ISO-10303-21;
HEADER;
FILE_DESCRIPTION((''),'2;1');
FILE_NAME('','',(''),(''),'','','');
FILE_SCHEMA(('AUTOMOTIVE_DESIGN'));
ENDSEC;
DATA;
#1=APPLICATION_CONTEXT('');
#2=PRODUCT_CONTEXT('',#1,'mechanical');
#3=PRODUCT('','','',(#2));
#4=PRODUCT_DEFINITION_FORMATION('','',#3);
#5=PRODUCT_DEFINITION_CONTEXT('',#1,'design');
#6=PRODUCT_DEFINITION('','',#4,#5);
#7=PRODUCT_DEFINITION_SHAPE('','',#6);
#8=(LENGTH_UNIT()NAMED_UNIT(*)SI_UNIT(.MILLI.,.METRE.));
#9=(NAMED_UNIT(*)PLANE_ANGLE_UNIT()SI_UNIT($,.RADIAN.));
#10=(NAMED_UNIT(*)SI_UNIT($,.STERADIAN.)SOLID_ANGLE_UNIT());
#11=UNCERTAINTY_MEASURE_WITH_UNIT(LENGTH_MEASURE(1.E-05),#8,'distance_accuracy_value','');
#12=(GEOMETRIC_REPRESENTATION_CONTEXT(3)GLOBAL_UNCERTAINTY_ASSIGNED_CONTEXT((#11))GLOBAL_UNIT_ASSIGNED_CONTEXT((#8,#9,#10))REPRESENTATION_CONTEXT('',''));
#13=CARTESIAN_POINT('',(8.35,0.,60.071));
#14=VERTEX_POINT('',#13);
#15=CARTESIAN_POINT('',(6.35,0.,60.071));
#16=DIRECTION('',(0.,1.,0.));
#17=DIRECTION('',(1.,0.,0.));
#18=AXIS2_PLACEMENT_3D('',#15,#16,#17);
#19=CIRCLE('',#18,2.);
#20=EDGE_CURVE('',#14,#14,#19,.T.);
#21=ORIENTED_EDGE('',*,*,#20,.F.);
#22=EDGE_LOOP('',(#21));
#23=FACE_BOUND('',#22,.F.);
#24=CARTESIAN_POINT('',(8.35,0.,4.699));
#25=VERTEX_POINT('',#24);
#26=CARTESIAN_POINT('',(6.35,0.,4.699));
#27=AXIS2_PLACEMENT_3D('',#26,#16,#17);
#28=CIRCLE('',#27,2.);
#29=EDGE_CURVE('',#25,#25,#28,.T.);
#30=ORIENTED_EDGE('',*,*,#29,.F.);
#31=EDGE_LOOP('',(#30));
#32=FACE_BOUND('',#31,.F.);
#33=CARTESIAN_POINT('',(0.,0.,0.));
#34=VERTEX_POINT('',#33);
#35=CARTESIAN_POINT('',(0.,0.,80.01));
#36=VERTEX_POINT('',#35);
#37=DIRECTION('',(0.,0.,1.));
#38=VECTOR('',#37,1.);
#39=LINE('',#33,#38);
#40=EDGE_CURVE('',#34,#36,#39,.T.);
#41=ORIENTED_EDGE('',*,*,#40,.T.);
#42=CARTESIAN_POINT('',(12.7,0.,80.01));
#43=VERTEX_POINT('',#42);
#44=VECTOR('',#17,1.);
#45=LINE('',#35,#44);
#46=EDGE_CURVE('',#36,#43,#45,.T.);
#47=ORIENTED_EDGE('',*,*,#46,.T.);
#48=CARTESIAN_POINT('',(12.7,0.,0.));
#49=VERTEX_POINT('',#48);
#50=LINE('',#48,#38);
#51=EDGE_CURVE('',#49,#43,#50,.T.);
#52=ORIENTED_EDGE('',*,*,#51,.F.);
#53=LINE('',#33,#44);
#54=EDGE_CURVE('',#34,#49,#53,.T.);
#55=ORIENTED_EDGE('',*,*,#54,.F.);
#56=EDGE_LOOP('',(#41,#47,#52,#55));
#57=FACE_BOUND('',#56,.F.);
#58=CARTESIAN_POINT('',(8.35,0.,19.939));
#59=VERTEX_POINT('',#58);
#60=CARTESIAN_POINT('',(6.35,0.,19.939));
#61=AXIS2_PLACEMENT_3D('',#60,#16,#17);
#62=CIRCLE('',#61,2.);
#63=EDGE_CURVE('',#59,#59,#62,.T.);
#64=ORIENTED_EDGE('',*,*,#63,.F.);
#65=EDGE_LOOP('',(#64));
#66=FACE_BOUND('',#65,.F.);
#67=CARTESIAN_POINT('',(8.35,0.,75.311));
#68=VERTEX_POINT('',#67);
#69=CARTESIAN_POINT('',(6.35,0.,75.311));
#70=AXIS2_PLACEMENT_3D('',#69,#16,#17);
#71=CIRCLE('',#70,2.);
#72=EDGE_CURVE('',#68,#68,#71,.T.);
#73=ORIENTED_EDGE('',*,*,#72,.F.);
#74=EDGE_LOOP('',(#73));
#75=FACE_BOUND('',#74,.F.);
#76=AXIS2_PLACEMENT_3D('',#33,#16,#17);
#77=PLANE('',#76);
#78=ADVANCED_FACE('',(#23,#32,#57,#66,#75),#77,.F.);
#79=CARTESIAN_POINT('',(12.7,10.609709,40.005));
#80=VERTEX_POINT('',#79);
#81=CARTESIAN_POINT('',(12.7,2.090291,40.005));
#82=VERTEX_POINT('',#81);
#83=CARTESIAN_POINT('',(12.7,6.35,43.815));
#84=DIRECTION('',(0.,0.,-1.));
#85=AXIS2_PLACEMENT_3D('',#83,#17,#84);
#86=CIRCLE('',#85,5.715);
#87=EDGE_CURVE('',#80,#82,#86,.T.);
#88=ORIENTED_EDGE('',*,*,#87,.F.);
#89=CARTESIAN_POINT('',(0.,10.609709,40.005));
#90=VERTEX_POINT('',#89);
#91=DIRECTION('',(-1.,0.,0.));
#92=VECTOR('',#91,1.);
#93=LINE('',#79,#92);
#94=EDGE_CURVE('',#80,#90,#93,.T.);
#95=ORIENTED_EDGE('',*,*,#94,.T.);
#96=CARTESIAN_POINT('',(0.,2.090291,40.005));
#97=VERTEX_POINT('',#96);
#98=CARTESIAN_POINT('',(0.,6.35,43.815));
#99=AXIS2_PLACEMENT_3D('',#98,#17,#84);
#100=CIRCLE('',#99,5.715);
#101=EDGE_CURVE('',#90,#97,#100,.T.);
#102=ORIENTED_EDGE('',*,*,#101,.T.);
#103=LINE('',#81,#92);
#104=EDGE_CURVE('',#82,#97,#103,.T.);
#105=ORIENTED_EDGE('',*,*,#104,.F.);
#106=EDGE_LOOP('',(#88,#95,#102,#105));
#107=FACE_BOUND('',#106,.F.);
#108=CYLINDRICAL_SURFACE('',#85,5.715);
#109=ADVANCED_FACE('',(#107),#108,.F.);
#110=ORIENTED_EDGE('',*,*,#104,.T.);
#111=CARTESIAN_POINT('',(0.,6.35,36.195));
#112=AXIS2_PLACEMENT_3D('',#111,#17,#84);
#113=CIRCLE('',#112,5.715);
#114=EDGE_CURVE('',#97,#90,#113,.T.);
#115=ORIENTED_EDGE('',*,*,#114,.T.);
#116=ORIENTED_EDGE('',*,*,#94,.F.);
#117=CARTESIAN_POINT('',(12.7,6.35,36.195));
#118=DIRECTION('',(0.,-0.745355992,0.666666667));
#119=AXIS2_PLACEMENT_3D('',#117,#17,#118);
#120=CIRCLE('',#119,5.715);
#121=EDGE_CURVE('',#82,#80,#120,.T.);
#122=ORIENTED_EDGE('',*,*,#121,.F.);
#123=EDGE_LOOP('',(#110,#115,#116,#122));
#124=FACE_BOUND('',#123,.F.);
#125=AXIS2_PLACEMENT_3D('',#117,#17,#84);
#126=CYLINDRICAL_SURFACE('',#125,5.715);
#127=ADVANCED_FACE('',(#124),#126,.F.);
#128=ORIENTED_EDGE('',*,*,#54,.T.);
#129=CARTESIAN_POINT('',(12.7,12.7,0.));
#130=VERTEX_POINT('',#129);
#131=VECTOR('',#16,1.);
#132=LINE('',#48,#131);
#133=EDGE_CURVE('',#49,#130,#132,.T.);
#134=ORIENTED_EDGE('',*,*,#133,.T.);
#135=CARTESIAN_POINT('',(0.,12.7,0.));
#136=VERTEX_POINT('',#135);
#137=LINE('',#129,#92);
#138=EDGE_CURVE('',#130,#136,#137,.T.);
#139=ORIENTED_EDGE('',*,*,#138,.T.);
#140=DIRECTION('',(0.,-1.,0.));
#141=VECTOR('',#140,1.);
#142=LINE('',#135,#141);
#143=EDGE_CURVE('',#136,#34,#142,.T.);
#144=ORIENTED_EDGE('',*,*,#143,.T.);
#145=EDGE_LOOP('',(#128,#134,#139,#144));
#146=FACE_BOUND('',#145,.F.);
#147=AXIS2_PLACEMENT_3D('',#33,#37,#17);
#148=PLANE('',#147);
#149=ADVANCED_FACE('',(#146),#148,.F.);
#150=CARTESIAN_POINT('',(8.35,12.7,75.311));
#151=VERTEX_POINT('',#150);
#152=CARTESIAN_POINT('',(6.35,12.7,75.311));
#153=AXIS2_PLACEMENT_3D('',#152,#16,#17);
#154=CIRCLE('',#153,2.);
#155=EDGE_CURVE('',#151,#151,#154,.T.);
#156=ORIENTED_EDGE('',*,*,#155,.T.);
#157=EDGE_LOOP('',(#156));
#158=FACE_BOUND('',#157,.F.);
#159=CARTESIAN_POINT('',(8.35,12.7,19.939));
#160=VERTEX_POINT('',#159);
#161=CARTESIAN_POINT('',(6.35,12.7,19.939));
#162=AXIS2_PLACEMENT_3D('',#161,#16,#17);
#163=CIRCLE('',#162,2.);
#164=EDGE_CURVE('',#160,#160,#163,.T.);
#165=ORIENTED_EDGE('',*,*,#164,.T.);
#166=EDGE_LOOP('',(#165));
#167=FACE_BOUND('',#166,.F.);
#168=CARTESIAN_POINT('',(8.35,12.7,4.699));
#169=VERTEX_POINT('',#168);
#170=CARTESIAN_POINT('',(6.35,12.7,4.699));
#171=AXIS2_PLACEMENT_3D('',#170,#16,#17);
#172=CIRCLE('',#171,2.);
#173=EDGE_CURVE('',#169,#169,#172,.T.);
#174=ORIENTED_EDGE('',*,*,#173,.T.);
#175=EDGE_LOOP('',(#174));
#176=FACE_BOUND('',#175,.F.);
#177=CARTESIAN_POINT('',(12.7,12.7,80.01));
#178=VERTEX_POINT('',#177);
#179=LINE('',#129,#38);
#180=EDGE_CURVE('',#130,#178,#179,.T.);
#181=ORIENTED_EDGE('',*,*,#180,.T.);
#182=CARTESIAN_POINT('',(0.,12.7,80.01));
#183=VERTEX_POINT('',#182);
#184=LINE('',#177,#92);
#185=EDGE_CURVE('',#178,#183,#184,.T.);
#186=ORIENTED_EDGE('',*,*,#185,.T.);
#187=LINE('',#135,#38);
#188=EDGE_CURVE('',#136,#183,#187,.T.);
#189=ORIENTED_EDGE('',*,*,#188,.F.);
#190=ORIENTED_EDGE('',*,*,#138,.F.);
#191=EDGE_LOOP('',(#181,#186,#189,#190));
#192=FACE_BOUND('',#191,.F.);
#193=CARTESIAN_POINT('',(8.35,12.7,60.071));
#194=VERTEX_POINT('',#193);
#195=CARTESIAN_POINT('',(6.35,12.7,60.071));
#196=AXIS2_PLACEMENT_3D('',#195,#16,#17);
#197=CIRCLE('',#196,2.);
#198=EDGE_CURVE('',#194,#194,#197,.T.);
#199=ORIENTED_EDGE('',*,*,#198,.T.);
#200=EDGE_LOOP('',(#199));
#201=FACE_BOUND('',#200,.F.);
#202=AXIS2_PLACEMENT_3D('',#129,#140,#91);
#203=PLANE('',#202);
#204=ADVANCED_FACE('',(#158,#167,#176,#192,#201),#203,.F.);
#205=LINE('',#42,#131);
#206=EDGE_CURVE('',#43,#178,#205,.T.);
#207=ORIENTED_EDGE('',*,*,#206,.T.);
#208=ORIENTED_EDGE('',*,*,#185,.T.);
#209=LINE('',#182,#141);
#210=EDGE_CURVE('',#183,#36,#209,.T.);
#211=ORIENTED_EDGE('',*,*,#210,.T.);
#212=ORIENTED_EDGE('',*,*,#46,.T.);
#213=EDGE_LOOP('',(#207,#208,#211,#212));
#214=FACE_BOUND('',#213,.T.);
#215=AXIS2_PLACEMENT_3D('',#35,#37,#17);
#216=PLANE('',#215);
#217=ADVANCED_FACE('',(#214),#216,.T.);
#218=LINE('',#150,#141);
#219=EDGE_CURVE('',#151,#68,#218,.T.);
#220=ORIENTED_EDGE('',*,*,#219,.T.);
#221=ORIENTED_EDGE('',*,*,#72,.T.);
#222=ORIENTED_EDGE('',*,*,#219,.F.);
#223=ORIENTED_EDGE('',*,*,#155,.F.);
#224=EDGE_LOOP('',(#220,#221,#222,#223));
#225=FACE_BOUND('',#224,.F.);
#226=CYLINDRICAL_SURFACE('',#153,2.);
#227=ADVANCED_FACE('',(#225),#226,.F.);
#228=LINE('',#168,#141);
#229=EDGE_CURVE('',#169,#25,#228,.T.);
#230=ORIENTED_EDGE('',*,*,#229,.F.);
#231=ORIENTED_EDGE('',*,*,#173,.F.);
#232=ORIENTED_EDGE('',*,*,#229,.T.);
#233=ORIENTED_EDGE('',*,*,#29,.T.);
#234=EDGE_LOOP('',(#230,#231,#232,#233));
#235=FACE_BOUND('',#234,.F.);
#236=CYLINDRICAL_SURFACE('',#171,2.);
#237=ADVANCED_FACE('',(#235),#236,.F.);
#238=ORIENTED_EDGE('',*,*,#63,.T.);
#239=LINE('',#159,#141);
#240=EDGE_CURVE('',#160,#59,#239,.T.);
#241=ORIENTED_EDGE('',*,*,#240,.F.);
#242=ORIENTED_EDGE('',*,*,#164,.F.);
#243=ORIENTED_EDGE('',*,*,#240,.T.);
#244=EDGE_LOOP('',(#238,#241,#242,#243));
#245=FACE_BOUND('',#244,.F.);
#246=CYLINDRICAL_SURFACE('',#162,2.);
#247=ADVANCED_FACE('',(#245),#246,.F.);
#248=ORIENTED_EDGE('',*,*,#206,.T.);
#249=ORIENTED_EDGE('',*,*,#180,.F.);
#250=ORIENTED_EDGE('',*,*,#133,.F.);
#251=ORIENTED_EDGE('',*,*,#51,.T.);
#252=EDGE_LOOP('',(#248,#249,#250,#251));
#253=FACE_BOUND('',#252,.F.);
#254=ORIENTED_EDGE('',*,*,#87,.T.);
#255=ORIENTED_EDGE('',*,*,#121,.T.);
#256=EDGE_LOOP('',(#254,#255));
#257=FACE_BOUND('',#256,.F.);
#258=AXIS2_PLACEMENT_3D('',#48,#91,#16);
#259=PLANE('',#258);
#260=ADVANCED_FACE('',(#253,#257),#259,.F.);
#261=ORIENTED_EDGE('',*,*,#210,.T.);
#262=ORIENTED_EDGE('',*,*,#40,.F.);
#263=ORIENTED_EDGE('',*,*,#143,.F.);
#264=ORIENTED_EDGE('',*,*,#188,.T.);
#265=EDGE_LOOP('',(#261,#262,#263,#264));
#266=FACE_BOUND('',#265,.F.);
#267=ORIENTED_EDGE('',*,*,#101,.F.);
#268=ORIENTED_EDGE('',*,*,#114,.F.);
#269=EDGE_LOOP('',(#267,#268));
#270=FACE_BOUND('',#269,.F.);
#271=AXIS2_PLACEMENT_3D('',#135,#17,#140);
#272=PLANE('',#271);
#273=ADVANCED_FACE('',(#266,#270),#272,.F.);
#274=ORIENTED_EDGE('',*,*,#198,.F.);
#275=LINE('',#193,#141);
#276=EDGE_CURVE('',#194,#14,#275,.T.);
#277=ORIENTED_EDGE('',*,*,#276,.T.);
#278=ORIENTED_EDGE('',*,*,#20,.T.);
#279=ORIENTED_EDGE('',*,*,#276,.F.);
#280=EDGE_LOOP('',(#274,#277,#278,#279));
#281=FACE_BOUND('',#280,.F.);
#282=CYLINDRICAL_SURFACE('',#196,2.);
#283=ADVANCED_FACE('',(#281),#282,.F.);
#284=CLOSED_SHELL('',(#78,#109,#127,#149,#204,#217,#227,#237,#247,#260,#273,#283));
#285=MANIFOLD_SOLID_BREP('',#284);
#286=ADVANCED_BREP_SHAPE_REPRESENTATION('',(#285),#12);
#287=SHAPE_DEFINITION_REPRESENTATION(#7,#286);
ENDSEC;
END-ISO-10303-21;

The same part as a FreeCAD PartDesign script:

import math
import FreeCAD as App
import Part
import Sketcher
Q = App.Units.Quantity


def add_polygon(sketch, points):
    """Adds a closed chain of lines whose ends are joined by coincident constraints."""
    first, n = sketch.GeometryCount, len(points)
    for a, b in zip(points, points[1:] + points[:1]):
        sketch.addGeometry(Part.LineSegment(App.Vector(*a, 0), App.Vector(*b, 0)), False)
    for i in range(n):
        sketch.addConstraint(Sketcher.Constraint("Coincident", first + i, 2, first + (i + 1) % n, 1))

doc = App.newDocument("Part")
params = doc.addObject("Spreadsheet::Sheet", "Params")
for row, (alias, value) in enumerate([
    ("sketch1_width", "0.5 in"),
    ("pad1_length", "3.15 in"),
    ("sketch2_radius", "0.225 in"),
], start=1):
    params.set(f"A{row}", alias)
    params.set(f"B{row}", "=" + value)
    params.setAlias(f"B{row}", alias)

body = doc.addObject("PartDesign::Body", "Body")

sketch1 = body.newObject("Sketcher::SketchObject", "Sketch")
sketch1.AttachmentSupport = (doc.getObject("XY_Plane"), [""])
sketch1.MapMode = "FlatFace"
add_polygon(sketch1, [(0, 13), (0, 0), (13, 0), (13, 13)])
sketch1.addConstraint([
    Sketcher.Constraint("Vertical", 0),
    Sketcher.Constraint("Horizontal", 1),
    Sketcher.Constraint("Vertical", 2),
    Sketcher.Constraint("Horizontal", 3),
    Sketcher.Constraint("Coincident", 0, 2, -1, 1),
    Sketcher.Constraint("Equal", 3, 0),
    Sketcher.Constraint("DistanceX", 1, 1, 1, 2, Q("0.5 in")),
])
sketch1.setExpression("Constraints[10]", "Params.sketch1_width")
pad1 = body.newObject("PartDesign::Pad", "Pad")
pad1.Profile = sketch1
pad1.setExpression("Length", "Params.pad1_length")

sketch2 = body.newObject("Sketcher::SketchObject", "Sketch001")
sketch2.AttachmentSupport = (doc.getObject("YZ_Plane"), [""])
sketch2.MapMode = "FlatFace"
sketch2.AttachmentOffset = App.Placement(App.Vector(0, 0, 0.5 * 25.4), App.Rotation())
sketch2.addGeometry([
    Part.ArcOfCircle(Part.Circle(App.Vector(6, 36, 0), App.Vector(0, 0, 1), 6), math.radians(138), math.radians(402)),
    Part.ArcOfCircle(Part.Circle(App.Vector(6, 44, 0), App.Vector(0, 0, 1), 6), math.radians(-42), math.radians(222)),
], False)
sketch2.addConstraint([
    Sketcher.Constraint("Coincident", 0, 1, 1, 2),
    Sketcher.Constraint("Coincident", 1, 1, 0, 2),
    Sketcher.Constraint("Equal", 0, 1),
    Sketcher.Constraint("Horizontal", 0, 1, 1, 1),
    Sketcher.Constraint("Radius", 0, Q("0.225 in")),
    Sketcher.Constraint("DistanceY", 0, 3, 1, 3, Q("0.3 in")),
    Sketcher.Constraint("DistanceX", -1, 1, 0, 3, Q("0.25 in")),
    Sketcher.Constraint("DistanceY", -1, 1, 0, 1, Q("1.575 in")),
])
sketch2.setExpression("Constraints[4]", "Params.sketch2_radius")
pocket1 = body.newObject("PartDesign::Pocket", "Pocket")
pocket1.Profile = sketch2
pocket1.Type = "ThroughAll"

sketch3 = body.newObject("Sketcher::SketchObject", "Sketch002")
sketch3.AttachmentSupport = (doc.getObject("XZ_Plane"), [""])
sketch3.MapMode = "FlatFace"
sketch3.AttachmentOffset = App.Placement(App.Vector(0, 0, -0.5 * 25.4), App.Rotation())
sketch3.addGeometry([
    Part.Circle(App.Vector(6.3, 75.3, 0), App.Vector(0, 0, 1), 2),
    Part.Circle(App.Vector(6.3, 60.1, 0), App.Vector(0, 0, 1), 2),
    Part.Circle(App.Vector(6.3, 4.7, 0), App.Vector(0, 0, 1), 2),
    Part.Circle(App.Vector(6.3, 19.9, 0), App.Vector(0, 0, 1), 2),
], False)
sketch3.addConstraint([
    Sketcher.Constraint("Equal", 0, 1),
    Sketcher.Constraint("Equal", 1, 2),
    Sketcher.Constraint("Equal", 2, 3),
    Sketcher.Constraint("Vertical", 0, 3, 1, 3),
    Sketcher.Constraint("Vertical", 1, 3, 2, 3),
    Sketcher.Constraint("Vertical", 2, 3, 3, 3),
    Sketcher.Constraint("DistanceY", 1, 3, 0, 3, Q("0.6 in")),
    Sketcher.Constraint("DistanceY", 2, 3, 3, 3, Q("0.6 in")),
    Sketcher.Constraint("Diameter", 0, 4.0),
    Sketcher.Constraint("DistanceX", -1, 1, 0, 3, Q("0.25 in")),
    Sketcher.Constraint("DistanceY", -1, 1, 2, 3, Q("0.185 in")),
    Sketcher.Constraint("DistanceY", 2, 3, 1, 3, Q("2.18 in")),
])
pocket2 = body.newObject("PartDesign::Pocket", "Pocket001")
pocket2.Profile = sketch3
pocket2.Type = "ThroughAll"
pocket2.Reversed = True

doc.recompute()
